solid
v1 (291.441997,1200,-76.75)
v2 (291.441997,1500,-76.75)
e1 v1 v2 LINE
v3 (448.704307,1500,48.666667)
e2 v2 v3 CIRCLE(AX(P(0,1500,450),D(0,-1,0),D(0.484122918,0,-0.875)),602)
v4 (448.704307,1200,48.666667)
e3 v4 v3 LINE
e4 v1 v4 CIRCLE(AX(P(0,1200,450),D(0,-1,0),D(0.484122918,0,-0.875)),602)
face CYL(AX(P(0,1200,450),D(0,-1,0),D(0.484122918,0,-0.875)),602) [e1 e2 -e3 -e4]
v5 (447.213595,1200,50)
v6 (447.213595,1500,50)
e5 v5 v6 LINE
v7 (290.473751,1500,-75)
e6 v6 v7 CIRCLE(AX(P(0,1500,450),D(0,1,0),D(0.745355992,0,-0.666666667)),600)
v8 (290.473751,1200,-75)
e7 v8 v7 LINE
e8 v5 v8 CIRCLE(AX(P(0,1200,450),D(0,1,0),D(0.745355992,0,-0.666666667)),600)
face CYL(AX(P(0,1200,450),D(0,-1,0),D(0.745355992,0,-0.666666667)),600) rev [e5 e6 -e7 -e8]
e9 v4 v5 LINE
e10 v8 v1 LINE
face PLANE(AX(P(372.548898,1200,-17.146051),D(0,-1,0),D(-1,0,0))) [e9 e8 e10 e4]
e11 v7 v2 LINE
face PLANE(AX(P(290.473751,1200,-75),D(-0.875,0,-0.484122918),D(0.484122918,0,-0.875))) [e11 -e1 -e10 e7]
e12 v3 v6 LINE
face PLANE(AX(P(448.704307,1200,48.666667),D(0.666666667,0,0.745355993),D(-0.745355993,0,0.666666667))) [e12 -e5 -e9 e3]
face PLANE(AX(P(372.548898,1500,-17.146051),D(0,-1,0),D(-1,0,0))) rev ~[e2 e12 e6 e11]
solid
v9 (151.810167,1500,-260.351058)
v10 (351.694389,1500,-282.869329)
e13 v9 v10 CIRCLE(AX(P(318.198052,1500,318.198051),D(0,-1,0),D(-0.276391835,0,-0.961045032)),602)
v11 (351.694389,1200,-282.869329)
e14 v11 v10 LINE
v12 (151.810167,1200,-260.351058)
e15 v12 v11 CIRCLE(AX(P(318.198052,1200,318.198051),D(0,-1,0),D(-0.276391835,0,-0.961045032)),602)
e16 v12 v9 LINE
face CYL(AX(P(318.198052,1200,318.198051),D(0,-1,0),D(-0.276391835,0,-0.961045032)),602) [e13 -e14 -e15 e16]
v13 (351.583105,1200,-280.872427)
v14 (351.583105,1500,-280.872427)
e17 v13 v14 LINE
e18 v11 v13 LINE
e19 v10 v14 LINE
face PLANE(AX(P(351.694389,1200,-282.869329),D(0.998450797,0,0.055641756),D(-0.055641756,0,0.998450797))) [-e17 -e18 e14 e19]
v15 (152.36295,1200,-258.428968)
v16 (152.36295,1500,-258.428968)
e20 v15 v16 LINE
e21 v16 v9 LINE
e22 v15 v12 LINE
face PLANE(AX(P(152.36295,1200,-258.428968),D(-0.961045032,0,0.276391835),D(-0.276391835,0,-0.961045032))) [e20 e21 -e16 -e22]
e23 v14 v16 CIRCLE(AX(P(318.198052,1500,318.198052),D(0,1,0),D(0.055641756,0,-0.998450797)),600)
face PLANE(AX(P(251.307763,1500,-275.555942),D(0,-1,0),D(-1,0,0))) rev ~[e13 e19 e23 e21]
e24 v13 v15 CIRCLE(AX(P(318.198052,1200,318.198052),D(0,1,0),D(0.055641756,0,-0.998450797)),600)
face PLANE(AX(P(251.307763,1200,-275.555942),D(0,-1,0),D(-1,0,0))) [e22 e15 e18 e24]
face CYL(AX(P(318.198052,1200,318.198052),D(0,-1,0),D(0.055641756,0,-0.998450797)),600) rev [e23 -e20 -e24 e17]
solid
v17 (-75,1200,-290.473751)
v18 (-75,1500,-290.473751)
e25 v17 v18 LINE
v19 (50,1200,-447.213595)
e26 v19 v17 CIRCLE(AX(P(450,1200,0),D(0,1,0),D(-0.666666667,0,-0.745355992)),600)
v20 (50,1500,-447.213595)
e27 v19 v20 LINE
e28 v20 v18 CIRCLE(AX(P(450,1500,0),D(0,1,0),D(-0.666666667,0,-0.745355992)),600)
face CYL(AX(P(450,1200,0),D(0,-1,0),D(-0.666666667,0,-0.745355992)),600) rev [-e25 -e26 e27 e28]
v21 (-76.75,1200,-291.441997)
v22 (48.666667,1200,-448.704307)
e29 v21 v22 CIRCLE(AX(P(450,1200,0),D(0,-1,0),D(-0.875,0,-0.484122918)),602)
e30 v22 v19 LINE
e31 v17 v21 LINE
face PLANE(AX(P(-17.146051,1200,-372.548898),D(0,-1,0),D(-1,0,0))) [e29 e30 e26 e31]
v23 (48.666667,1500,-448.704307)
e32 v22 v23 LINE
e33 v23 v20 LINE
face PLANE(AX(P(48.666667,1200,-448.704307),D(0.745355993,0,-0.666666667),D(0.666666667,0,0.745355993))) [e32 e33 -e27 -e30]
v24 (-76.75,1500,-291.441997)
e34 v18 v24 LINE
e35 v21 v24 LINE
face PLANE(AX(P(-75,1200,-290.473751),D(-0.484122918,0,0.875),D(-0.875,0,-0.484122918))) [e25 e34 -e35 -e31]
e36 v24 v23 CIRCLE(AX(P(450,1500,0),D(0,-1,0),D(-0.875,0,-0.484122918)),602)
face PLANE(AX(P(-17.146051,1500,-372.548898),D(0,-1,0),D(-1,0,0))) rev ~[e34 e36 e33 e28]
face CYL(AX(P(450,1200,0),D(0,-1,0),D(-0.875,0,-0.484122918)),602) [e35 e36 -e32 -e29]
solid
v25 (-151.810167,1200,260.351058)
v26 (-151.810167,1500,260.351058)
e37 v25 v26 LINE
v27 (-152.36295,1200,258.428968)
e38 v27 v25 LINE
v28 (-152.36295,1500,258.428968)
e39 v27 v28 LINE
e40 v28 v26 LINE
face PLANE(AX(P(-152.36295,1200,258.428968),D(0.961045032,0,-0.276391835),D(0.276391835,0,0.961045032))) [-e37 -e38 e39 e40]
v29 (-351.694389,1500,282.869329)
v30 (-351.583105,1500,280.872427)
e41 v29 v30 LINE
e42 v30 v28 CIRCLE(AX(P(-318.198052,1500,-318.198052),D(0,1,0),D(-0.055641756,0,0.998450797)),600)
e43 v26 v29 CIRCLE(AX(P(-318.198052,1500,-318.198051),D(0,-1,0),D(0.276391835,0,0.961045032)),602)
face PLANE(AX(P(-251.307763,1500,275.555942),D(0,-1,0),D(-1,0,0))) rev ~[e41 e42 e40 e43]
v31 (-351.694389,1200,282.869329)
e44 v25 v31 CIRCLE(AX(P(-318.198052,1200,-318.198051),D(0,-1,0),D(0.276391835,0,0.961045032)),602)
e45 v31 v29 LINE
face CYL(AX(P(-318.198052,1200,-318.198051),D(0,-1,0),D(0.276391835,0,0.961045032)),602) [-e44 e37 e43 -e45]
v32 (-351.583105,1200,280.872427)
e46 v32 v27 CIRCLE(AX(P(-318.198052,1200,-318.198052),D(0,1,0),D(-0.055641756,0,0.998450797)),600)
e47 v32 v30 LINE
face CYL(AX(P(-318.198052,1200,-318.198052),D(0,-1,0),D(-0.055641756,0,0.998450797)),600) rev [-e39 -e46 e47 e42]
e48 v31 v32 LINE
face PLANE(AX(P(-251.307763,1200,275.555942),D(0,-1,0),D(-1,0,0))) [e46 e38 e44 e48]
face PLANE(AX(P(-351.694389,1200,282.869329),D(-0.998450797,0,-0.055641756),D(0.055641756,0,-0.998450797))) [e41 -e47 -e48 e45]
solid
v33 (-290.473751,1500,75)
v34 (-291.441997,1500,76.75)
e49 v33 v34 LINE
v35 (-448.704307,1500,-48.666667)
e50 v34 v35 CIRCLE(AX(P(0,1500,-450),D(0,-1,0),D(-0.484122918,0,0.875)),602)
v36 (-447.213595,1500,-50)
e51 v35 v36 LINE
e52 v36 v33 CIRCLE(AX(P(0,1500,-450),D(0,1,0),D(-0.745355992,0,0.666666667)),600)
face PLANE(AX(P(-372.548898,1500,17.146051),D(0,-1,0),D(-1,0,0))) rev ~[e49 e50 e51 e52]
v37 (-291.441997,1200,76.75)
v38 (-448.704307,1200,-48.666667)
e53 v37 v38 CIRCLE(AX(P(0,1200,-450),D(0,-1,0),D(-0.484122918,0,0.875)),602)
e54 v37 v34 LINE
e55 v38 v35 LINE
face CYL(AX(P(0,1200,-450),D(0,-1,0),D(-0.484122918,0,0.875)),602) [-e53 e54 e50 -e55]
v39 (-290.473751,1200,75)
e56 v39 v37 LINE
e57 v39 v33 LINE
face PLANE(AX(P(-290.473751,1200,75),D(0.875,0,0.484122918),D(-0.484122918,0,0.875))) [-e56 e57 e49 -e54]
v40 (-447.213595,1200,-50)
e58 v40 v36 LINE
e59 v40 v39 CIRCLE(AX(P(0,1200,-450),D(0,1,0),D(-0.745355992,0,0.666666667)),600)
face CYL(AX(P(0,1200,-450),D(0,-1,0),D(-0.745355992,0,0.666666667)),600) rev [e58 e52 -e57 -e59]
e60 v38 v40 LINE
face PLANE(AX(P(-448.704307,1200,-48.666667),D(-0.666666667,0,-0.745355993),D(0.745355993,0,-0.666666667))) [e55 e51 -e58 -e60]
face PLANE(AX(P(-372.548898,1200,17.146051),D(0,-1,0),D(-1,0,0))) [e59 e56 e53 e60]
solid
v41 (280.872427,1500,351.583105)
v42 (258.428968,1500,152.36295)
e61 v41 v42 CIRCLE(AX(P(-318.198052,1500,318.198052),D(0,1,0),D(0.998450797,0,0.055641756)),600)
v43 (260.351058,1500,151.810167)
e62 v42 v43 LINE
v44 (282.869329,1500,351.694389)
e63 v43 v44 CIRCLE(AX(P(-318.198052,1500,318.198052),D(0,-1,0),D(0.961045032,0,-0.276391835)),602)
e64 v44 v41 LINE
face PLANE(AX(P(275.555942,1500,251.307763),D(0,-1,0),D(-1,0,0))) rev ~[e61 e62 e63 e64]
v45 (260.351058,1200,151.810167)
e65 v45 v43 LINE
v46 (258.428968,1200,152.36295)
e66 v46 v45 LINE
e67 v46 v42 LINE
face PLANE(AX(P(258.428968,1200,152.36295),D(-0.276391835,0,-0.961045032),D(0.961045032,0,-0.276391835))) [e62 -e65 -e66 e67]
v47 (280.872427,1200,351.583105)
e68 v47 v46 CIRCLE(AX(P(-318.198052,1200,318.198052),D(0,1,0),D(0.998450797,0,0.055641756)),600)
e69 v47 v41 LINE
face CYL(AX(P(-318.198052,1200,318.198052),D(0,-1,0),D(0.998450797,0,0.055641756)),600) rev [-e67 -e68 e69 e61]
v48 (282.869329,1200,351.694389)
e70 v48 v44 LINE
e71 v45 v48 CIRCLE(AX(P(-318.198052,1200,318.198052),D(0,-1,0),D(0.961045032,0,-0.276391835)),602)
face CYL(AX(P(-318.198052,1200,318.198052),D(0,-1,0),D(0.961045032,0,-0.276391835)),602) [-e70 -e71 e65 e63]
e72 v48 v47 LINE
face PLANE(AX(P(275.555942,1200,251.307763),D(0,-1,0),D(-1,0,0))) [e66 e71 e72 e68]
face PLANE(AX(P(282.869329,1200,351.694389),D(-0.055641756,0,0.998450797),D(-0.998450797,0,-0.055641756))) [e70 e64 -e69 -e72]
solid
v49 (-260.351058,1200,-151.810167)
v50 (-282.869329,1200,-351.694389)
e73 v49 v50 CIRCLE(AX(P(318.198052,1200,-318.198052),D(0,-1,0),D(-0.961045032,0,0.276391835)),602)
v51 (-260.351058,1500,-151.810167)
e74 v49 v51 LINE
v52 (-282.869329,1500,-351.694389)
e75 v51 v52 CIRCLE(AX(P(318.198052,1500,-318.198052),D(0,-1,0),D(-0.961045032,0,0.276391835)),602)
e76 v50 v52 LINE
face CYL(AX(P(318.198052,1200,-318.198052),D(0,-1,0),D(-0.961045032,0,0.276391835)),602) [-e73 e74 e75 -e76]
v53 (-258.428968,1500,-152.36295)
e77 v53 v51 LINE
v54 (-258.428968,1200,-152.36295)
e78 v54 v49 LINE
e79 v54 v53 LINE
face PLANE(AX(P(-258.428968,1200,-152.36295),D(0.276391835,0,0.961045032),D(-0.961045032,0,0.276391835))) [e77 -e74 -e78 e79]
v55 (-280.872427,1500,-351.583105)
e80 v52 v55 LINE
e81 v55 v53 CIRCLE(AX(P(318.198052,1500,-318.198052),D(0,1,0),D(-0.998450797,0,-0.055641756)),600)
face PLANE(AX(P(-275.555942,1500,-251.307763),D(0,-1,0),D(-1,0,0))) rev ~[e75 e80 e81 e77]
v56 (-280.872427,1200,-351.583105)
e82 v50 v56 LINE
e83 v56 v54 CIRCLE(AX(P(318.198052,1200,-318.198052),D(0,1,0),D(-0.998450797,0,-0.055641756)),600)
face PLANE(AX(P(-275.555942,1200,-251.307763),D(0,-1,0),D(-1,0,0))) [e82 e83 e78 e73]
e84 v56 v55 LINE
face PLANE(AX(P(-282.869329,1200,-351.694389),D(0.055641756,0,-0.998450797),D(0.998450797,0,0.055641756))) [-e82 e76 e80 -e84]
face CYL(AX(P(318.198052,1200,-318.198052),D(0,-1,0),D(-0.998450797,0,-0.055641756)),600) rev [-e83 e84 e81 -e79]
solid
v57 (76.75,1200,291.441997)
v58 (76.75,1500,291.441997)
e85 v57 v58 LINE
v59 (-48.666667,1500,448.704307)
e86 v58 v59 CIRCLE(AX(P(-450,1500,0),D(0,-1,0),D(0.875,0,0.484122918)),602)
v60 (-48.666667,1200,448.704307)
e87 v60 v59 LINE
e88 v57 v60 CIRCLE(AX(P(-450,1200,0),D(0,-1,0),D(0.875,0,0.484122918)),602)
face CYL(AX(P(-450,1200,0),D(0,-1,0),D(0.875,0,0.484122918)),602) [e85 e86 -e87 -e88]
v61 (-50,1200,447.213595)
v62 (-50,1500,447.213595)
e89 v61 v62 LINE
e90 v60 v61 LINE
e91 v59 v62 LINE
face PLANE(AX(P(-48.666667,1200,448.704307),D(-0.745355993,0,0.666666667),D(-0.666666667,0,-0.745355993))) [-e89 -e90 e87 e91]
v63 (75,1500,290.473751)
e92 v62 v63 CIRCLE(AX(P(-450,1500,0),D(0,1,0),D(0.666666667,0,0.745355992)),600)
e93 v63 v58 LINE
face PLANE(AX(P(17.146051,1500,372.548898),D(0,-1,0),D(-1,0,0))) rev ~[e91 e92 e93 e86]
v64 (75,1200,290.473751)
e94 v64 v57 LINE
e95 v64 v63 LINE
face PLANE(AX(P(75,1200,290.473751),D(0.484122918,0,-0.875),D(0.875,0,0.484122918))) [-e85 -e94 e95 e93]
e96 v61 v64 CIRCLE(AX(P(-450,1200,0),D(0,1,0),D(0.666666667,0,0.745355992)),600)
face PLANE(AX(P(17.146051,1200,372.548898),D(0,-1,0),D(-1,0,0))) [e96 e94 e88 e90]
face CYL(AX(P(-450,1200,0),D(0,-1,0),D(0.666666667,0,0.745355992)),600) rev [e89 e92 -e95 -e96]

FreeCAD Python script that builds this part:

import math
import FreeCAD as App
import Part
import Sketcher
from FreeCAD import Vector
Q = App.Units.Quantity

doc = App.newDocument("Part")
body = doc.addObject("PartDesign::Body", "Body")

# Sketch on XZ plane
sketch1 = body.newObject("Sketcher::SketchObject", "Sketch")
sketch1.AttachmentSupport = (doc.getObject("XZ_Plane"), [""])
sketch1.MapMode = "FlatFace"
sketch1.AttachmentOffset = App.Placement(Vector(0, 0, -1200), App.Rotation())
sketch1.addGeometry([
    Part.ArcOfCircle(Part.Circle(Vector(450, 0, 0), Vector(0, 0, 1), 600), math.radians(-151.04), math.radians(-131.81)),
    Part.LineSegment(Vector(50, -447.2, 0), Vector(48.7, -448.7, 0)),
    Part.ArcOfCircle(Part.Circle(Vector(450, 0, 0), Vector(0, 0, 1), 602), math.radians(-151.04), math.radians(-131.81)),
    Part.LineSegment(Vector(-76.8, -291.4, 0), Vector(-75, -290.5, 0)),
], False)
sketch1.addConstraint([
    Sketcher.Constraint("Coincident", 0, 2, 1, 1),
    Sketcher.Constraint("Coincident", 1, 2, 2, 2),
    Sketcher.Constraint("Coincident", 2, 1, 3, 1),
    Sketcher.Constraint("Coincident", 3, 2, 0, 1),
    Sketcher.Constraint("Coincident", 2, 3, 0, 3),
    Sketcher.Constraint("PointOnObject", 0, 3, -1),
    Sketcher.Constraint("Radius", 0, 600.0),
    Sketcher.Constraint("Radius", 2, 602.0),
    Sketcher.Constraint("DistanceX", -1, 1, 0, 3, 450.0),
    Sketcher.Constraint("DistanceX", 3, 2, -1, 1, 75.0),
    Sketcher.Constraint("DistanceY", 1, 2, 0, 2, 1.490712),
    Sketcher.Constraint("DistanceX", -1, 1, 1, 2, 48.666667),
    Sketcher.Constraint("Angle", 3, Q("28.955024 deg")),
])
pad1 = body.newObject("PartDesign::Pad", "Pad")
pad1.Profile = sketch1
pad1.Length = 300
pad1.Reversed = True
body2 = doc.addObject("PartDesign::Body", "Body001")

# Sketch on XZ plane
sketch2 = body2.newObject("Sketcher::SketchObject", "Sketch001")
sketch2.AttachmentSupport = (doc.getObject("XZ_Plane001"), [""])
sketch2.MapMode = "FlatFace"
sketch2.AttachmentOffset = App.Placement(Vector(0, 0, -1200), App.Rotation())
sketch2.addGeometry([
    Part.ArcOfCircle(Part.Circle(Vector(318.2, 318.2, 0), Vector(0, 0, 1), 600), math.radians(-106.04), math.radians(-86.81)),
    Part.LineSegment(Vector(351.6, -280.9, 0), Vector(351.7, -282.9, 0)),
    Part.ArcOfCircle(Part.Circle(Vector(318.2, 318.2, 0), Vector(0, 0, 1), 602), math.radians(-106.04), math.radians(-86.81)),
    Part.LineSegment(Vector(151.8, -260.4, 0), Vector(152.4, -258.4, 0)),
], False)
sketch2.addConstraint([
    Sketcher.Constraint("Coincident", 0, 2, 1, 1),
    Sketcher.Constraint("Coincident", 1, 2, 2, 2),
    Sketcher.Constraint("Coincident", 2, 1, 3, 1),
    Sketcher.Constraint("Coincident", 3, 2, 0, 1),
    Sketcher.Constraint("Coincident", 2, 3, 0, 3),
    Sketcher.Constraint("Radius", 0, 600.0),
    Sketcher.Constraint("Radius", 2, 602.0),
    Sketcher.Constraint("DistanceY", 1, 2, 0, 2, 1.996902),
    Sketcher.Constraint("DistanceX", 3, 2, 2, 3, 165.835101),
    Sketcher.Constraint("DistanceX", -1, 1, 0, 3, 318.198052),
    Sketcher.Constraint("DistanceY", -1, 1, 0, 3, 318.198052),
    Sketcher.Constraint("DistanceX", -1, 1, 1, 2, 351.694389),
    Sketcher.Constraint("Angle", 3, Q("73.955024 deg")),
])
pad2 = body2.newObject("PartDesign::Pad", "Pad001")
pad2.Profile = sketch2
pad2.Length = 300
pad2.Reversed = True
body3 = doc.addObject("PartDesign::Body", "Body002")

# Sketch on XZ plane
sketch3 = body3.newObject("Sketcher::SketchObject", "Sketch002")
sketch3.AttachmentSupport = (doc.getObject("XZ_Plane002"), [""])
sketch3.MapMode = "FlatFace"
sketch3.AttachmentOffset = App.Placement(Vector(0, 0, -1200), App.Rotation())
sketch3.addGeometry([
    Part.ArcOfCircle(Part.Circle(Vector(0, 450, 0), Vector(0, 0, 1), 600), math.radians(-61.04), math.radians(-41.81)),
    Part.LineSegment(Vector(447.2, 50, 0), Vector(448.7, 48.7, 0)),
    Part.ArcOfCircle(Part.Circle(Vector(0, 450, 0), Vector(0, 0, 1), 602), math.radians(-61.04), math.radians(-41.81)),
    Part.LineSegment(Vector(291.4, -76.8, 0), Vector(290.5, -75, 0)),
], False)
sketch3.addConstraint([
    Sketcher.Constraint("Coincident", 0, 2, 1, 1),
    Sketcher.Constraint("Coincident", 1, 2, 2, 2),
    Sketcher.Constraint("Coincident", 2, 1, 3, 1),
    Sketcher.Constraint("Coincident", 3, 2, 0, 1),
    Sketcher.Constraint("Coincident", 2, 3, 0, 3),
    Sketcher.Constraint("PointOnObject", 0, 3, -2),
    Sketcher.Constraint("Radius", 0, 600.0),
    Sketcher.Constraint("Radius", 2, 602.0),
    Sketcher.Constraint("DistanceY", -1, 1, 0, 3, 450.0),
    Sketcher.Constraint("DistanceY", 3, 2, -1, 1, 75.0),
    Sketcher.Constraint("DistanceX", 0, 2, 1, 2, 1.490712),
    Sketcher.Constraint("DistanceX", -1, 1, 1, 2, 448.704307),
    Sketcher.Constraint("Angle", 3, Q("118.955024 deg")),
])
pad3 = body3.newObject("PartDesign::Pad", "Pad002")
pad3.Profile = sketch3
pad3.Length = 300
pad3.Reversed = True
body4 = doc.addObject("PartDesign::Body", "Body003")

# Sketch on XZ plane
sketch4 = body4.newObject("Sketcher::SketchObject", "Sketch003")
sketch4.AttachmentSupport = (doc.getObject("XZ_Plane003"), [""])
sketch4.MapMode = "FlatFace"
sketch4.AttachmentOffset = App.Placement(Vector(0, 0, -1200), App.Rotation())
sketch4.addGeometry([
    Part.ArcOfCircle(Part.Circle(Vector(-318.2, 318.2, 0), Vector(0, 0, 1), 600), math.radians(-16.04), math.radians(3.19)),
    Part.LineSegment(Vector(280.9, 351.6, 0), Vector(282.9, 351.7, 0)),
    Part.ArcOfCircle(Part.Circle(Vector(-318.2, 318.2, 0), Vector(0, 0, 1), 602), math.radians(-16.04), math.radians(3.19)),
    Part.LineSegment(Vector(260.4, 151.8, 0), Vector(258.4, 152.4, 0)),
], False)
sketch4.addConstraint([
    Sketcher.Constraint("Coincident", 0, 2, 1, 1),
    Sketcher.Constraint("Coincident", 1, 2, 2, 2),
    Sketcher.Constraint("Coincident", 2, 1, 3, 1),
    Sketcher.Constraint("Coincident", 3, 2, 0, 1),
    Sketcher.Constraint("Coincident", 2, 3, 0, 3),
    Sketcher.Constraint("Radius", 0, 600.0),
    Sketcher.Constraint("Radius", 2, 602.0),
    Sketcher.Constraint("DistanceX", 0, 2, 1, 2, 1.996902),
    Sketcher.Constraint("DistanceY", 3, 2, 0, 3, 165.835101),
    Sketcher.Constraint("DistanceX", 0, 3, -1, 1, 318.198052),
    Sketcher.Constraint("DistanceY", -1, 1, 0, 3, 318.198052),
    Sketcher.Constraint("DistanceX", -1, 1, 1, 2, 282.869329),
    Sketcher.Constraint("Angle", 3, Q("163.955024 deg")),
])
pad4 = body4.newObject("PartDesign::Pad", "Pad003")
pad4.Profile = sketch4
pad4.Length = 300
pad4.Reversed = True
body5 = doc.addObject("PartDesign::Body", "Body004")

# Sketch on XZ plane
sketch5 = body5.newObject("Sketcher::SketchObject", "Sketch004")
sketch5.AttachmentSupport = (doc.getObject("XZ_Plane004"), [""])
sketch5.MapMode = "FlatFace"
sketch5.AttachmentOffset = App.Placement(Vector(0, 0, -1200), App.Rotation())
sketch5.addGeometry([
    Part.ArcOfCircle(Part.Circle(Vector(-450, 0, 0), Vector(0, 0, 1), 600), math.radians(28.96), math.radians(48.19)),
    Part.LineSegment(Vector(-50, 447.2, 0), Vector(-48.7, 448.7, 0)),
    Part.ArcOfCircle(Part.Circle(Vector(-450, 0, 0), Vector(0, 0, 1), 602), math.radians(28.96), math.radians(48.19)),
    Part.LineSegment(Vector(76.8, 291.4, 0), Vector(75, 290.5, 0)),
], False)
sketch5.addConstraint([
    Sketcher.Constraint("Coincident", 0, 2, 1, 1),
    Sketcher.Constraint("Coincident", 1, 2, 2, 2),
    Sketcher.Constraint("Coincident", 2, 1, 3, 1),
    Sketcher.Constraint("Coincident", 3, 2, 0, 1),
    Sketcher.Constraint("Coincident", 2, 3, 0, 3),
    Sketcher.Constraint("PointOnObject", 0, 3, -1),
    Sketcher.Constraint("Radius", 0, 600.0),
    Sketcher.Constraint("Radius", 2, 602.0),
    Sketcher.Constraint("DistanceX", 0, 3, -1, 1, 450.0),
    Sketcher.Constraint("DistanceX", -1, 1, 3, 2, 75.0),
    Sketcher.Constraint("DistanceY", 0, 2, 1, 2, 1.490712),
    Sketcher.Constraint("DistanceX", 1, 2, -1, 1, 48.666667),
    Sketcher.Constraint("Angle", 3, Q("-151.044976 deg")),
])
pad5 = body5.newObject("PartDesign::Pad", "Pad004")
pad5.Profile = sketch5
pad5.Length = 300
pad5.Reversed = True
body6 = doc.addObject("PartDesign::Body", "Body005")

# Sketch on XZ plane
sketch6 = body6.newObject("Sketcher::SketchObject", "Sketch005")
sketch6.AttachmentSupport = (doc.getObject("XZ_Plane005"), [""])
sketch6.MapMode = "FlatFace"
sketch6.AttachmentOffset = App.Placement(Vector(0, 0, -1200), App.Rotation())
sketch6.addGeometry([
    Part.ArcOfCircle(Part.Circle(Vector(-318.2, -318.2, 0), Vector(0, 0, 1), 600), math.radians(73.96), math.radians(93.19)),
    Part.LineSegment(Vector(-351.6, 280.9, 0), Vector(-351.7, 282.9, 0)),
    Part.ArcOfCircle(Part.Circle(Vector(-318.2, -318.2, 0), Vector(0, 0, 1), 602), math.radians(73.96), math.radians(93.19)),
    Part.LineSegment(Vector(-151.8, 260.4, 0), Vector(-152.4, 258.4, 0)),
], False)
sketch6.addConstraint([
    Sketcher.Constraint("Coincident", 0, 2, 1, 1),
    Sketcher.Constraint("Coincident", 1, 2, 2, 2),
    Sketcher.Constraint("Coincident", 2, 1, 3, 1),
    Sketcher.Constraint("Coincident", 3, 2, 0, 1),
    Sketcher.Constraint("Coincident", 2, 3, 0, 3),
    Sketcher.Constraint("Radius", 0, 600.0),
    Sketcher.Constraint("Radius", 2, 602.0),
    Sketcher.Constraint("DistanceY", 0, 2, 1, 2, 1.996902),
    Sketcher.Constraint("DistanceX", 2, 3, 3, 2, 165.835101),
    Sketcher.Constraint("DistanceX", 0, 3, -1, 1, 318.198052),
    Sketcher.Constraint("DistanceY", 0, 3, -1, 1, 318.198052),
    Sketcher.Constraint("DistanceX", 1, 2, -1, 1, 351.694389),
    Sketcher.Constraint("Angle", 3, Q("-106.044976 deg")),
])
pad6 = body6.newObject("PartDesign::Pad", "Pad005")
pad6.Profile = sketch6
pad6.Length = 300
pad6.Reversed = True
body7 = doc.addObject("PartDesign::Body", "Body006")

# Sketch on XZ plane
sketch7 = body7.newObject("Sketcher::SketchObject", "Sketch006")
sketch7.AttachmentSupport = (doc.getObject("XZ_Plane006"), [""])
sketch7.MapMode = "FlatFace"
sketch7.AttachmentOffset = App.Placement(Vector(0, 0, -1200), App.Rotation())
sketch7.addGeometry([
    Part.ArcOfCircle(Part.Circle(Vector(0, -450, 0), Vector(0, 0, 1), 600), math.radians(118.96), math.radians(138.19)),
    Part.LineSegment(Vector(-447.2, -50, 0), Vector(-448.7, -48.7, 0)),
    Part.ArcOfCircle(Part.Circle(Vector(0, -450, 0), Vector(0, 0, 1), 602), math.radians(118.96), math.radians(138.19)),
    Part.LineSegment(Vector(-291.4, 76.8, 0), Vector(-290.5, 75, 0)),
], False)
sketch7.addConstraint([
    Sketcher.Constraint("Coincident", 0, 2, 1, 1),
    Sketcher.Constraint("Coincident", 1, 2, 2, 2),
    Sketcher.Constraint("Coincident", 2, 1, 3, 1),
    Sketcher.Constraint("Coincident", 3, 2, 0, 1),
    Sketcher.Constraint("Coincident", 2, 3, 0, 3),
    Sketcher.Constraint("PointOnObject", 0, 3, -2),
    Sketcher.Constraint("Radius", 0, 600.0),
    Sketcher.Constraint("Radius", 2, 602.0),
    Sketcher.Constraint("DistanceY", 0, 3, -1, 1, 450.0),
    Sketcher.Constraint("DistanceY", -1, 1, 3, 2, 75.0),
    Sketcher.Constraint("DistanceX", 1, 2, 0, 2, 1.490712),
    Sketcher.Constraint("DistanceX", 1, 2, -1, 1, 448.704307),
    Sketcher.Constraint("Angle", 3, Q("-61.044976 deg")),
])
pad7 = body7.newObject("PartDesign::Pad", "Pad006")
pad7.Profile = sketch7
pad7.Length = 300
pad7.Reversed = True
body8 = doc.addObject("PartDesign::Body", "Body007")

# Sketch on XZ plane
sketch8 = body8.newObject("Sketcher::SketchObject", "Sketch007")
sketch8.AttachmentSupport = (doc.getObject("XZ_Plane007"), [""])
sketch8.MapMode = "FlatFace"
sketch8.AttachmentOffset = App.Placement(Vector(0, 0, -1200), App.Rotation())
sketch8.addGeometry([
    Part.ArcOfCircle(Part.Circle(Vector(318.2, -318.2, 0), Vector(0, 0, 1), 600), math.radians(163.96), math.radians(183.19)),
    Part.LineSegment(Vector(-280.9, -351.6, 0), Vector(-282.9, -351.7, 0)),
    Part.ArcOfCircle(Part.Circle(Vector(318.2, -318.2, 0), Vector(0, 0, 1), 602), math.radians(163.96), math.radians(183.19)),
    Part.LineSegment(Vector(-260.4, -151.8, 0), Vector(-258.4, -152.4, 0)),
], False)
sketch8.addConstraint([
    Sketcher.Constraint("Coincident", 0, 2, 1, 1),
    Sketcher.Constraint("Coincident", 1, 2, 2, 2),
    Sketcher.Constraint("Coincident", 2, 1, 3, 1),
    Sketcher.Constraint("Coincident", 3, 2, 0, 1),
    Sketcher.Constraint("Coincident", 2, 3, 0, 3),
    Sketcher.Constraint("Radius", 0, 600.0),
    Sketcher.Constraint("Radius", 2, 602.0),
    Sketcher.Constraint("DistanceX", 1, 2, 0, 2, 1.996902),
    Sketcher.Constraint("DistanceY", 0, 3, 3, 2, 165.835101),
    Sketcher.Constraint("DistanceX", -1, 1, 0, 3, 318.198052),
    Sketcher.Constraint("DistanceY", 0, 3, -1, 1, 318.198052),
    Sketcher.Constraint("DistanceX", 1, 2, -1, 1, 282.869329),
    Sketcher.Constraint("Angle", 3, Q("-16.044976 deg")),
])
pad8 = body8.newObject("PartDesign::Pad", "Pad007")
pad8.Profile = sketch8
pad8.Length = 300
pad8.Reversed = True

doc.recompute()
